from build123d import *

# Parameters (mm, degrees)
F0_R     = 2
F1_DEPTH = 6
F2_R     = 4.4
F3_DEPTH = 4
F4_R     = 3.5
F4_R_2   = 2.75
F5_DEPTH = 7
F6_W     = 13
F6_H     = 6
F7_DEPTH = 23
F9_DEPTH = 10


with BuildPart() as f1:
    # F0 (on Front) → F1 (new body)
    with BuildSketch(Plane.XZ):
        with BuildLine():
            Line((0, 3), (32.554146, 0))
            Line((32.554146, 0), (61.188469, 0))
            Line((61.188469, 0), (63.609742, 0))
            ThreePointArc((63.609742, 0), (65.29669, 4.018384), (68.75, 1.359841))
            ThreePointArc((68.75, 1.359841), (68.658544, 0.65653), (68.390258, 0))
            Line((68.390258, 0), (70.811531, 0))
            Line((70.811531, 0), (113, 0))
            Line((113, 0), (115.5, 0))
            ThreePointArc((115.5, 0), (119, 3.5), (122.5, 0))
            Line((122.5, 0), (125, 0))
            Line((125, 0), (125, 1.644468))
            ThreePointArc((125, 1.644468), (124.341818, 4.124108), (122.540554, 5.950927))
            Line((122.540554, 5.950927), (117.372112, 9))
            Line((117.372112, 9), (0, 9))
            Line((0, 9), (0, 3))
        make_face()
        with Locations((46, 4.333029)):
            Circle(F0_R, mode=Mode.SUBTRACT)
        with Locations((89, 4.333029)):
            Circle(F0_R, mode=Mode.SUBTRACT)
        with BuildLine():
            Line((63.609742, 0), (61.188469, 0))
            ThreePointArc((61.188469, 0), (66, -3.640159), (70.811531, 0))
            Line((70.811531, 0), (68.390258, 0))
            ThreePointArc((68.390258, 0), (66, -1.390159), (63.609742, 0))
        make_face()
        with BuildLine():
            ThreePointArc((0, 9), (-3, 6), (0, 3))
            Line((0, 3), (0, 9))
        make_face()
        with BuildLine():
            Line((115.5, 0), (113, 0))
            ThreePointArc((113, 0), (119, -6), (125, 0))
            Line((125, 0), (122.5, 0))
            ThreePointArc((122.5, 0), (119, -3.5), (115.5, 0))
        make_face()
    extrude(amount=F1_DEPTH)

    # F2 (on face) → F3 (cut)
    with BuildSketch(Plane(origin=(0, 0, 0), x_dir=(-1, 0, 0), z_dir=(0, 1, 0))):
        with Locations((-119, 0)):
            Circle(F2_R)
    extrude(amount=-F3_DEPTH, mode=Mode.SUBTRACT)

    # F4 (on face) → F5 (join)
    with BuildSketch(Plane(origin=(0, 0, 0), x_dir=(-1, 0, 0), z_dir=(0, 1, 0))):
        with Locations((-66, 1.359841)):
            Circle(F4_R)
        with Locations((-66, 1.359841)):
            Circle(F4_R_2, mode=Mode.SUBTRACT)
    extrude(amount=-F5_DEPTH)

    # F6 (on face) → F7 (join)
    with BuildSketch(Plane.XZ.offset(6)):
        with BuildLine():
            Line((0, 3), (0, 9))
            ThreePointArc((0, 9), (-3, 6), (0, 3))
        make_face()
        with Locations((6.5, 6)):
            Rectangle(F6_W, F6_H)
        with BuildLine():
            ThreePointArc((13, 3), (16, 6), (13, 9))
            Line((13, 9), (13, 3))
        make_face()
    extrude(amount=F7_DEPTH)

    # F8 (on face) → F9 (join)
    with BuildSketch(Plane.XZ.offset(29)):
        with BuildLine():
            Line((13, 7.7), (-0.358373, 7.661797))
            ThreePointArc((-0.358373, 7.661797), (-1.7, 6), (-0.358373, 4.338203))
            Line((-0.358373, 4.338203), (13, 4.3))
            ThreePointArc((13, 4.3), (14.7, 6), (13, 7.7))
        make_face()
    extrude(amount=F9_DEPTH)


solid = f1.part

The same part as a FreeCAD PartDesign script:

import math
import FreeCAD as App
import Part
import Sketcher

V = App.Vector
Q = App.Units.Quantity

doc = App.newDocument("Part")
body = doc.addObject("PartDesign::Body", "Body")

# Sketch on XZ plane
sketch1 = body.newObject("Sketcher::SketchObject", "Sketch")
sketch1.AttachmentSupport = (doc.getObject("XZ_Plane"), [""])
sketch1.MapMode = "FlatFace"
sketch1.addGeometry([
    Part.LineSegment(V(0, 3, 0), V(32.6, 0, 0)),  # 0
    Part.LineSegment(V(32.6, 0, 0), V(61.2, 0, 0)),  # 1
    Part.ArcOfCircle(Part.Circle(V(66, 1.4, 0), V(0, 0, 1), 5), math.radians(-164), math.radians(-16)),  # 2
    Part.LineSegment(V(70.8, 0, 0), V(113, 0, 0)),  # 3
    Part.ArcOfCircle(Part.Circle(V(119, 0, 0), V(0, 0, 1), 6), math.radians(180), math.radians(360)),  # 4
    Part.LineSegment(V(125, 0, 0), V(125, 1.6, 0)),  # 5
    Part.ArcOfCircle(Part.Circle(V(120, 1.6, 0), V(0, 0, 1), 5), math.radians(0), math.radians(59)),  # 6
    Part.LineSegment(V(122.5, 6, 0), V(117.4, 9, 0)),  # 7
    Part.LineSegment(V(117.4, 9, 0), V(0, 9, 0)),  # 8
    Part.ArcOfCircle(Part.Circle(V(0, 6, 0), V(0, 0, 1), 3), math.radians(90), math.radians(270)),  # 9
    Part.Circle(V(119, 0, 0), V(0, 0, 1), 3.5),  # 10
    Part.ArcOfCircle(Part.Circle(V(66, 1.4, 0), V(0, 0, 1), 2.7), math.radians(0), math.radians(210)),  # 11
    Part.ArcOfCircle(Part.Circle(V(66, 1.4, 0), V(0, 0, 1), 2.7), math.radians(-30), math.radians(0)),  # 12
    Part.ArcOfCircle(Part.Circle(V(66, 1.4, 0), V(0, 0, 1), 2.8), math.radians(-150), math.radians(-30)),  # 13
    Part.Circle(V(46, 4.3, 0), V(0, 0, 1), 2),  # 14
    Part.Circle(V(89, 4.3, 0), V(0, 0, 1), 2),  # 15
], False)
sketch1.addConstraint([
    Sketcher.Constraint("Coincident", 0, 2, 1, 1),
    Sketcher.Constraint("Coincident", 1, 2, 2, 1),
    Sketcher.Constraint("Coincident", 2, 2, 3, 1),
    Sketcher.Constraint("Coincident", 3, 2, 4, 1),
    Sketcher.Constraint("Tangent", 4, 2, 5, 1),
    Sketcher.Constraint("Tangent", 5, 2, 6, 1),
    Sketcher.Constraint("Tangent", 6, 2, 7, 1),
    Sketcher.Constraint("Coincident", 7, 2, 8, 1),
    Sketcher.Constraint("Tangent", 8, 2, 9, 1),
    Sketcher.Constraint("Coincident", 9, 2, 0, 1),
    Sketcher.Constraint("Tangent", 11, 1, 12, 2),
    Sketcher.Constraint("Tangent", 12, 1, 13, 2),
    Sketcher.Constraint("Tangent", 13, 1, 11, 2),
    Sketcher.Constraint("Horizontal", 1),
    Sketcher.Constraint("Horizontal", 3),
    Sketcher.Constraint("Vertical", 5),
    Sketcher.Constraint("Horizontal", 8),
    Sketcher.Constraint("Coincident", 10, 3, 4, 3),
    Sketcher.Constraint("Coincident", 11, 3, 2, 3),
    Sketcher.Constraint("Equal", 14, 15),
    Sketcher.Constraint("PointOnObject", 4, 3, -1),
    Sketcher.Constraint("PointOnObject", 9, 3, -2),
    Sketcher.Constraint("PointOnObject", 0, 2, -1),
    Sketcher.Constraint("PointOnObject", 2, 2, -1),
    Sketcher.Constraint("PointOnObject", 9, 2, -2),
    Sketcher.Constraint("PointOnObject", 12, 1, -1),
    Sketcher.Constraint("PointOnObject", 13, 1, -1),
    Sketcher.Constraint("Horizontal", 14, 3, 15, 3),
    Sketcher.Constraint("Horizontal", 13, 3, 11, 1),
    Sketcher.Constraint("Diameter", 10, Q("7 mm")),
    Sketcher.Constraint("Diameter", 14, Q("4 mm")),
    Sketcher.Constraint("Radius", 2, Q("5 mm")),
    Sketcher.Constraint("Radius", 4, Q("6 mm")),
    Sketcher.Constraint("Radius", 9, Q("3 mm")),
    Sketcher.Constraint("Radius", 11, Q("2.75 mm")),
    Sketcher.Constraint("DistanceX", -1, 1, 2, 3, Q("66 mm")),
    Sketcher.Constraint("DistanceX", -1, 1, 4, 3, Q("119 mm")),
    Sketcher.Constraint("DistanceY", -1, 1, 9, 3, Q("6 mm")),
    Sketcher.Constraint("DistanceX", -1, 1, 14, 3, Q("46 mm")),
    Sketcher.Constraint("DistanceX", -1, 1, 15, 3, Q("89 mm")),
    Sketcher.Constraint("Radius", 6, Q("5.000003 mm")),
    Sketcher.Constraint("DistanceX", 3, 1, 3, 2, Q("42.188469 mm")),
    Sketcher.Constraint("DistanceX", 8, 2, 8, 1, Q("117.372112 mm")),
    Sketcher.Constraint("DistanceX", 1, 1, 1, 2, Q("28.634323 mm")),
    Sketcher.Constraint("DistanceY", 5, 1, 5, 2, Q("1.644468 mm")),
    Sketcher.Constraint("DistanceY", -1, 1, 14, 3, Q("4.333029 mm")),
])
pad1 = body.newObject("PartDesign::Pad", "Pad")
pad1.Profile = sketch1
pad1.Length = 6

# Sketch on XZ plane
sketch2 = body.newObject("Sketcher::SketchObject", "Sketch001")
sketch2.AttachmentSupport = (doc.getObject("XZ_Plane"), [""])
sketch2.MapMode = "FlatFace"
sketch2.addGeometry(Part.Circle(V(119, 0, 0), V(0, 0, 1), 4.4), False)
sketch2.addConstraint([
    Sketcher.Constraint("PointOnObject", 0, 3, -1),
    Sketcher.Constraint("Diameter", 0, Q("8.8 mm")),
    Sketcher.Constraint("DistanceX", -1, 1, 0, 3, Q("119 mm")),
])
pocket1 = body.newObject("PartDesign::Pocket", "Pocket")
pocket1.Profile = sketch2
pocket1.Length = 4
pocket1.Reversed = True

# Sketch on XZ plane
sketch3 = body.newObject("Sketcher::SketchObject", "Sketch002")
sketch3.AttachmentSupport = (doc.getObject("XZ_Plane"), [""])
sketch3.MapMode = "FlatFace"
sketch3.addGeometry([
    Part.Circle(V(66, 1.4, 0), V(0, 0, 1), 3.5),
    Part.Circle(V(66, 1.4, 0), V(0, 0, 1), 2.8),
], False)
sketch3.addConstraint([
    Sketcher.Constraint("Coincident", 1, 3, 0, 3),
    Sketcher.Constraint("Diameter", 0, Q("7 mm")),
    Sketcher.Constraint("Diameter", 1, Q("5.5 mm")),
    Sketcher.Constraint("DistanceX", -1, 1, 0, 3, Q("66 mm")),
    Sketcher.Constraint("DistanceY", -1, 1, 0, 3, Q("1.359841 mm")),
])
pad2 = body.newObject("PartDesign::Pad", "Pad001")
pad2.Profile = sketch3
pad2.Length = 7

# Sketch on XZ plane
sketch4 = body.newObject("Sketcher::SketchObject", "Sketch003")
sketch4.AttachmentSupport = (doc.getObject("XZ_Plane"), [""])
sketch4.MapMode = "FlatFace"
sketch4.AttachmentOffset = App.Placement(V(0, 0, 6), App.Rotation())
sketch4.addGeometry([
    Part.ArcOfCircle(Part.Circle(V(0, 6, 0), V(0, 0, 1), 3), math.radians(90), math.radians(270)),
    Part.LineSegment(V(0, 3, 0), V(13, 3, 0)),
    Part.ArcOfCircle(Part.Circle(V(13, 6, 0), V(0, 0, 1), 3), math.radians(-90), math.radians(90)),
    Part.LineSegment(V(13, 9, 0), V(0, 9, 0)),
], False)
sketch4.addConstraint([
    Sketcher.Constraint("Tangent", 0, 2, 1, 1),
    Sketcher.Constraint("Tangent", 1, 2, 2, 1),
    Sketcher.Constraint("Tangent", 2, 2, 3, 1),
    Sketcher.Constraint("Tangent", 3, 2, 0, 1),
    Sketcher.Constraint("Horizontal", 1),
    Sketcher.Constraint("Horizontal", 3),
    Sketcher.Constraint("PointOnObject", 0, 3, -2),
    Sketcher.Constraint("Radius", 0, Q("3 mm")),
    Sketcher.Constraint("DistanceX", 1, 1, 1, 2, Q("13 mm")),
    Sketcher.Constraint("DistanceY", -1, 1, 0, 3, Q("6 mm")),
])
pad3 = body.newObject("PartDesign::Pad", "Pad002")
pad3.Profile = sketch4
pad3.Length = 23

# Sketch on XZ plane
sketch5 = body.newObject("Sketcher::SketchObject", "Sketch004")
sketch5.AttachmentSupport = (doc.getObject("XZ_Plane"), [""])
sketch5.MapMode = "FlatFace"
sketch5.AttachmentOffset = App.Placement(V(0, 0, 29), App.Rotation())
sketch5.addGeometry([
    Part.LineSegment(V(13, 7.7, 0), V(-0.4, 7.7, 0)),
    Part.ArcOfCircle(Part.Circle(V(0, 6, 0), V(0, 0, 1), 1.7), math.radians(102), math.radians(258)),
    Part.LineSegment(V(-0.4, 4.3, 0), V(13, 4.3, 0)),
    Part.ArcOfCircle(Part.Circle(V(13, 6, 0), V(0, 0, 1), 1.7), math.radians(-90), math.radians(90)),
], False)
sketch5.addConstraint([
    Sketcher.Constraint("Coincident", 0, 2, 1, 1),
    Sketcher.Constraint("Coincident", 1, 2, 2, 1),
    Sketcher.Constraint("Coincident", 2, 2, 3, 1),
    Sketcher.Constraint("Coincident", 3, 2, 0, 1),
    Sketcher.Constraint("Equal", 1, 3),
    Sketcher.Constraint("PointOnObject", 1, 3, -2),
    Sketcher.Constraint("Horizontal", 1, 3, 3, 3),
    Sketcher.Constraint("Vertical", 0, 2, 1, 2),
    Sketcher.Constraint("Vertical", 3, 3, 2, 2),
    Sketcher.Constraint("Vertical", 2, 2, 3, 2),
    Sketcher.Constraint("Radius", 1, Q("1.7 mm")),
    Sketcher.Constraint("DistanceY", -1, 1, 1, 3, Q("6 mm")),
    Sketcher.Constraint("DistanceX", -1, 1, 3, 3, Q("13 mm")),
    Sketcher.Constraint("Distance", 0, Q("13.358428 mm")),
])
pad4 = body.newObject("PartDesign::Pad", "Pad003")
pad4.Profile = sketch5
pad4.Length = 10

doc.recompute()
